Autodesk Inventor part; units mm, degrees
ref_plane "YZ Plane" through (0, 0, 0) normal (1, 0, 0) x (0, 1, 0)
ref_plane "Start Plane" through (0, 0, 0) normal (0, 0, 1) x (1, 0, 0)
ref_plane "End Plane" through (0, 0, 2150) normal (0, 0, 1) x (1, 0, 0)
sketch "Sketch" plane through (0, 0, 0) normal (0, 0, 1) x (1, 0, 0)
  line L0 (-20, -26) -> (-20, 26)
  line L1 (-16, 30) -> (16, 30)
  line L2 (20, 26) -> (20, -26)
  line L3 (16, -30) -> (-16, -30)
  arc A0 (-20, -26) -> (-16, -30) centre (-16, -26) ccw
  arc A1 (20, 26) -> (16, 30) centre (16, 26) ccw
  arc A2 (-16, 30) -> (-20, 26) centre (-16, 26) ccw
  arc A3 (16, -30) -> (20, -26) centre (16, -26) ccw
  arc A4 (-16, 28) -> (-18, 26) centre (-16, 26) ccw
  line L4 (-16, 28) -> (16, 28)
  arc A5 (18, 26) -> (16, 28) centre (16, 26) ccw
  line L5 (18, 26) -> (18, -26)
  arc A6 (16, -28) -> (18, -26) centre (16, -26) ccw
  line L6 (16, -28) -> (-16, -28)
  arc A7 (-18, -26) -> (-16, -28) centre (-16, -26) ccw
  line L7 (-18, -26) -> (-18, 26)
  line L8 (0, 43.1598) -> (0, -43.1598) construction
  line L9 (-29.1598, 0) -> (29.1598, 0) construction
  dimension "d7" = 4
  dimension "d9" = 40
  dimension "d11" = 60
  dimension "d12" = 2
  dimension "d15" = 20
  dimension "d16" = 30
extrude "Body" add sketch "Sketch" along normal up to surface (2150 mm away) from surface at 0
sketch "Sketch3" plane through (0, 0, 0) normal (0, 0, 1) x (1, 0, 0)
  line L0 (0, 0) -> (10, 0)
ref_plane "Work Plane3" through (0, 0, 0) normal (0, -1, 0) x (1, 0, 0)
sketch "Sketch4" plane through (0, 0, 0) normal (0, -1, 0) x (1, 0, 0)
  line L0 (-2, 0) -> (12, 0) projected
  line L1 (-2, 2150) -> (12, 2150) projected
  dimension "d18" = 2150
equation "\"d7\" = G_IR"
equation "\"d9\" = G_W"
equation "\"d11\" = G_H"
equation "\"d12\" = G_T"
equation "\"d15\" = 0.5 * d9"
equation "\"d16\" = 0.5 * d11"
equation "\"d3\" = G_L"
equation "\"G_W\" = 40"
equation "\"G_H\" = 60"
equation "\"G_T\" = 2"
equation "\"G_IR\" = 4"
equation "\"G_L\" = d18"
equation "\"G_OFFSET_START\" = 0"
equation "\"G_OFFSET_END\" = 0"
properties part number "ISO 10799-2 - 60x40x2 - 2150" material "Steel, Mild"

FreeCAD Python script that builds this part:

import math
import FreeCAD as App
import Part
import Sketcher

doc = App.newDocument("Part")
body = doc.addObject("PartDesign::Body", "Body")

# Sketch on XY plane
sketch1 = body.newObject("Sketcher::SketchObject", "Sketch")
sketch1.AttachmentSupport = (doc.getObject("XY_Plane"), [""])
sketch1.MapMode = "FlatFace"
sketch1.addGeometry(Part.LineSegment(App.Vector(-20, 26, 0), App.Vector(-20, -26, 0)), False)
sketch1.addGeometry(Part.ArcOfCircle(Part.Circle(App.Vector(-16, -26, 0), App.Vector(0, 0, 1), 4), math.radians(180), math.radians(270)), False)
sketch1.addGeometry(Part.LineSegment(App.Vector(-16, -30, 0), App.Vector(16, -30, 0)), False)
sketch1.addGeometry(Part.ArcOfCircle(Part.Circle(App.Vector(16, -26, 0), App.Vector(0, 0, 1), 4), math.radians(-90), math.radians(0)), False)
sketch1.addGeometry(Part.LineSegment(App.Vector(20, -26, 0), App.Vector(20, 26, 0)), False)
sketch1.addGeometry(Part.ArcOfCircle(Part.Circle(App.Vector(16, 26, 0), App.Vector(0, 0, 1), 4), math.radians(0), math.radians(90)), False)
sketch1.addGeometry(Part.LineSegment(App.Vector(16, 30, 0), App.Vector(-16, 30, 0)), False)
sketch1.addGeometry(Part.ArcOfCircle(Part.Circle(App.Vector(-16, 26, 0), App.Vector(0, 0, 1), 4), math.radians(90), math.radians(180)), False)
sketch1.addGeometry(Part.ArcOfCircle(Part.Circle(App.Vector(-16, 26, 0), App.Vector(0, 0, 1), 2), math.radians(90), math.radians(180)), False)
sketch1.addGeometry(Part.LineSegment(App.Vector(-16, 28, 0), App.Vector(16, 28, 0)), False)
sketch1.addGeometry(Part.ArcOfCircle(Part.Circle(App.Vector(16, 26, 0), App.Vector(0, 0, 1), 2), math.radians(0), math.radians(90)), False)
sketch1.addGeometry(Part.LineSegment(App.Vector(18, 26, 0), App.Vector(18, -26, 0)), False)
sketch1.addGeometry(Part.ArcOfCircle(Part.Circle(App.Vector(16, -26, 0), App.Vector(0, 0, 1), 2), math.radians(-90), math.radians(0)), False)
sketch1.addGeometry(Part.LineSegment(App.Vector(16, -28, 0), App.Vector(-16, -28, 0)), False)
sketch1.addGeometry(Part.ArcOfCircle(Part.Circle(App.Vector(-16, -26, 0), App.Vector(0, 0, 1), 2), math.radians(180), math.radians(270)), False)
sketch1.addGeometry(Part.LineSegment(App.Vector(-18, -26, 0), App.Vector(-18, 26, 0)), False)
sketch1.addConstraint(Sketcher.Constraint("Tangent", 0, 2, 1, 1))
sketch1.addConstraint(Sketcher.Constraint("Tangent", 1, 2, 2, 1))
sketch1.addConstraint(Sketcher.Constraint("Tangent", 2, 2, 3, 1))
sketch1.addConstraint(Sketcher.Constraint("Tangent", 3, 2, 4, 1))
sketch1.addConstraint(Sketcher.Constraint("Tangent", 4, 2, 5, 1))
sketch1.addConstraint(Sketcher.Constraint("Tangent", 5, 2, 6, 1))
sketch1.addConstraint(Sketcher.Constraint("Tangent", 6, 2, 7, 1))
sketch1.addConstraint(Sketcher.Constraint("Tangent", 7, 2, 0, 1))
sketch1.addConstraint(Sketcher.Constraint("Tangent", 8, 1, 9, 1))
sketch1.addConstraint(Sketcher.Constraint("Tangent", 9, 2, 10, 2))
sketch1.addConstraint(Sketcher.Constraint("Tangent", 10, 1, 11, 1))
sketch1.addConstraint(Sketcher.Constraint("Tangent", 11, 2, 12, 2))
sketch1.addConstraint(Sketcher.Constraint("Tangent", 12, 1, 13, 1))
sketch1.addConstraint(Sketcher.Constraint("Tangent", 13, 2, 14, 2))
sketch1.addConstraint(Sketcher.Constraint("Tangent", 14, 1, 15, 1))
sketch1.addConstraint(Sketcher.Constraint("Tangent", 15, 2, 8, 2))
sketch1.addConstraint(Sketcher.Constraint("Vertical", 0))
sketch1.addConstraint(Sketcher.Constraint("Horizontal", 2))
sketch1.addConstraint(Sketcher.Constraint("Vertical", 4))
sketch1.addConstraint(Sketcher.Constraint("Horizontal", 6))
sketch1.addConstraint(Sketcher.Constraint("Horizontal", 9))
sketch1.addConstraint(Sketcher.Constraint("Vertical", 11))
sketch1.addConstraint(Sketcher.Constraint("Horizontal", 13))
sketch1.addConstraint(Sketcher.Constraint("Vertical", 15))
sketch1.addConstraint(Sketcher.Constraint("Coincident", 8, 3, 7, 3))
sketch1.addConstraint(Sketcher.Constraint("Coincident", 10, 3, 5, 3))
sketch1.addConstraint(Sketcher.Constraint("Coincident", 12, 3, 3, 3))
sketch1.addConstraint(Sketcher.Constraint("Equal", 1, 3))
sketch1.addConstraint(Sketcher.Constraint("Equal", 3, 5))
sketch1.addConstraint(Sketcher.Constraint("Equal", 5, 7))
sketch1.addConstraint(Sketcher.Constraint("Equal", 12, 14))
sketch1.addConstraint(Sketcher.Constraint("Symmetric", 1, 3, 5, 3, -1, 1))
sketch1.addConstraint(Sketcher.Constraint("Radius", 1, 4.0))
sketch1.addConstraint(Sketcher.Constraint("Radius", 8, 2.0))
sketch1.addConstraint(Sketcher.Constraint("DistanceX", 0, 2, -1, 1, 20.0))
sketch1.addConstraint(Sketcher.Constraint("DistanceY", 1, 2, -1, 1, 30.0))
pad1 = body.newObject("PartDesign::Pad", "Pad")
pad1.Profile = sketch1
pad1.Length = 2150

doc.recompute()
